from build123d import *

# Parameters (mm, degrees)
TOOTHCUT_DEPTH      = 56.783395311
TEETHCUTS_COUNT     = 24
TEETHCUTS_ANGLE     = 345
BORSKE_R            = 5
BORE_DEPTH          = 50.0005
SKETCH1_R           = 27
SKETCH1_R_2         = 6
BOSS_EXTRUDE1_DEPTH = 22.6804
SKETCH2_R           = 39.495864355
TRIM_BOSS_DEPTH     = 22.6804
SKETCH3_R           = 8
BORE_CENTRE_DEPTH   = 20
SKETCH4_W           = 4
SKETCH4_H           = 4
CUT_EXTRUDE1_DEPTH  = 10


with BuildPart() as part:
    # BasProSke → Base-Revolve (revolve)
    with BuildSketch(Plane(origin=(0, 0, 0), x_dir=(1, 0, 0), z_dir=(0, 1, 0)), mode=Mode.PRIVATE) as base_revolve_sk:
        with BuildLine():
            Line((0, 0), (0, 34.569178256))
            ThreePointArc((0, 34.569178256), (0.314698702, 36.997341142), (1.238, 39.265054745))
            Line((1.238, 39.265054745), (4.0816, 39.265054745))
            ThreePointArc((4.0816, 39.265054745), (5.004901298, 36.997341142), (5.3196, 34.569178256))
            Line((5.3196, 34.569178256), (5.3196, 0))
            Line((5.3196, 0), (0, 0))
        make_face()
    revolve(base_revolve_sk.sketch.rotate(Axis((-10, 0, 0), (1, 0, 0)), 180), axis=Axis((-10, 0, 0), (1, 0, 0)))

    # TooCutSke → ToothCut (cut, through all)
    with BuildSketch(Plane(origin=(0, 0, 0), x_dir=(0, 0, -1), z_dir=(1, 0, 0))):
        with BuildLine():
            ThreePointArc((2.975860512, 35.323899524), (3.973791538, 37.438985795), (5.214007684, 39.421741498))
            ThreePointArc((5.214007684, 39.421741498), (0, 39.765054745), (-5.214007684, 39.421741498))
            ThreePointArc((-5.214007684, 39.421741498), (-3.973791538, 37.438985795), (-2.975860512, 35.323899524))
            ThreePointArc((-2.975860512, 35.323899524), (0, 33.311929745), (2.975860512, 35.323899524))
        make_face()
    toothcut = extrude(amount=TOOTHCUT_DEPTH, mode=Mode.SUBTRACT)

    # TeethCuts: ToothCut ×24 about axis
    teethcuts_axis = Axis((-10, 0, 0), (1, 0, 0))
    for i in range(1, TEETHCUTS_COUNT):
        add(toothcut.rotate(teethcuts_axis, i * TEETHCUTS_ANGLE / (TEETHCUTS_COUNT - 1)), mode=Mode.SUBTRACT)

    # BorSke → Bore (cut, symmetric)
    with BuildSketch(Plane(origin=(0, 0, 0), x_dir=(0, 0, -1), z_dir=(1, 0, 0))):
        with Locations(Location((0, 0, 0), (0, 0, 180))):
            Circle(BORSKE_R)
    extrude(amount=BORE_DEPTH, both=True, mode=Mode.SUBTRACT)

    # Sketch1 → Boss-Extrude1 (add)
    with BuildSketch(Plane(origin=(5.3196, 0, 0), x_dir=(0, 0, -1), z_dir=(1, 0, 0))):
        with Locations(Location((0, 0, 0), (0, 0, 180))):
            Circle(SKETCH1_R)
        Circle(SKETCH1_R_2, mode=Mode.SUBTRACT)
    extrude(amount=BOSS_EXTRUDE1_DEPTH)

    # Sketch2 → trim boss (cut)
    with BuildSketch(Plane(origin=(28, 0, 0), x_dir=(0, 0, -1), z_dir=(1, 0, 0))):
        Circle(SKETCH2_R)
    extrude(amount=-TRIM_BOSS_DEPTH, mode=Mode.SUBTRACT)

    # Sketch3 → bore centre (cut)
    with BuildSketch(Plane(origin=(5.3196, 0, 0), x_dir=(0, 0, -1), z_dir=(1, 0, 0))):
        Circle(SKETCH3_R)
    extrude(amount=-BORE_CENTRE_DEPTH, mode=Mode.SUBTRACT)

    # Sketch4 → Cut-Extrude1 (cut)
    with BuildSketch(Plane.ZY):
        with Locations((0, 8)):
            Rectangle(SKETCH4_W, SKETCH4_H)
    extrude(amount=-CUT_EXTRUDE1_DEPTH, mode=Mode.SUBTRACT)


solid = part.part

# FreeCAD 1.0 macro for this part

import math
import FreeCAD as App
import Part
import Sketcher

V = App.Vector

doc = App.newDocument("Part")
body = doc.addObject("PartDesign::Body", "Body")

# Sketch on XZ plane
sketch1 = body.newObject("Sketcher::SketchObject", "Sketch")
sketch1.AttachmentSupport = (doc.getObject("XZ_Plane"), [""])
sketch1.MapMode = "FlatFace"
sketch1.addGeometry(Part.LineSegment(V(0, -34.6, 0), V(0, 0, 0)), False)
sketch1.addGeometry(Part.LineSegment(V(0, 0, 0), V(5.3, 0, 0)), False)
sketch1.addGeometry(Part.LineSegment(V(5.3, 0, 0), V(5.3, -34.6, 0)), False)
sketch1.addGeometry(Part.ArcOfCircle(Part.Circle(V(-4.2, -34.6, 0), V(0, 0, 1), 9.5), math.radians(-30), math.radians(0)), False)
sketch1.addGeometry(Part.LineSegment(V(4.1, -39.3, 0), V(1.2, -39.3, 0)), False)
sketch1.addGeometry(Part.ArcOfCircle(Part.Circle(V(9.5, -34.6, 0), V(0, 0, 1), 9.5), math.radians(180), math.radians(210)), False)
sketch1.addConstraint(Sketcher.Constraint("Coincident", 0, 2, 1, 1))
sketch1.addConstraint(Sketcher.Constraint("Coincident", 1, 2, 2, 1))
sketch1.addConstraint(Sketcher.Constraint("Tangent", 2, 2, 3, 2))
sketch1.addConstraint(Sketcher.Constraint("Coincident", 3, 1, 4, 1))
sketch1.addConstraint(Sketcher.Constraint("Coincident", 4, 2, 5, 2))
sketch1.addConstraint(Sketcher.Constraint("Tangent", 5, 1, 0, 1))
sketch1.addConstraint(Sketcher.Constraint("Vertical", 0))
sketch1.addConstraint(Sketcher.Constraint("Horizontal", 1))
sketch1.addConstraint(Sketcher.Constraint("Vertical", 2))
sketch1.addConstraint(Sketcher.Constraint("Horizontal", 4))
sketch1.addConstraint(Sketcher.Constraint("Coincident", 0, 2, -1, 1))
sketch1.addConstraint(Sketcher.Constraint("Equal", 3, 5))
sketch1.addConstraint(Sketcher.Constraint("Horizontal", 3, 3, 5, 3))
sketch1.addConstraint(Sketcher.Constraint("Radius", 3, 9.525))
sketch1.addConstraint(Sketcher.Constraint("DistanceX", 1, 1, 1, 2, 5.3196))
sketch1.addConstraint(Sketcher.Constraint("DistanceX", 4, 2, 4, 1, 2.8436))
sketch1.addConstraint(Sketcher.Constraint("DistanceY", 0, 1, 0, 2, 34.569178))
revolution = body.newObject("PartDesign::Revolution", "Revolution")
revolution.Profile = sketch1
revolution.ReferenceAxis = (sketch1, ["H_Axis"])
revolution.Angle = 360

# Sketch on YZ plane
sketch2 = body.newObject("Sketcher::SketchObject", "Sketch001")
sketch2.AttachmentSupport = (doc.getObject("YZ_Plane"), [""])
sketch2.MapMode = "FlatFace"
sketch2.addGeometry(Part.ArcOfCircle(Part.Circle(V(27.9, -21.4, 0), V(0, 0, 1), 19.8), math.radians(54.59), math.radians(68.13)), False)
sketch2.addGeometry(Part.ArcOfCircle(Part.Circle(V(0, 0, 0), V(0, 0, 1), 39.8), math.radians(-7.53), math.radians(7.53)), False)
sketch2.addGeometry(Part.ArcOfCircle(Part.Circle(V(27.9, 21.4, 0), V(0, 0, 1), 19.8), math.radians(-68.13), math.radians(-54.59)), False)
sketch2.addGeometry(Part.ArcOfCircle(Part.Circle(V(36.5, 0, 0), V(0, 0, 1), 3.2), math.radians(112), math.radians(248)), False)
sketch2.addConstraint(Sketcher.Constraint("Coincident", 0, 1, 1, 1))
sketch2.addConstraint(Sketcher.Constraint("Coincident", 1, 2, 2, 2))
sketch2.addConstraint(Sketcher.Constraint("Tangent", 2, 1, 3, 1))
sketch2.addConstraint(Sketcher.Constraint("Tangent", 3, 2, 0, 2))
sketch2.addConstraint(Sketcher.Constraint("Coincident", 1, 3, -1, 1))
sketch2.addConstraint(Sketcher.Constraint("Equal", 0, 2))
sketch2.addConstraint(Sketcher.Constraint("Symmetric", 0, 3, 2, 3, -1))
sketch2.addConstraint(Sketcher.Constraint("Radius", 0, 19.812))
sketch2.addConstraint(Sketcher.Constraint("Radius", 3, 3.20675))
sketch2.addConstraint(Sketcher.Constraint("Radius", 1, 39.765055))
sketch2.addConstraint(Sketcher.Constraint("DistanceX", -1, 1, 2, 1, 35.3239))
sketch2.addConstraint(Sketcher.Constraint("DistanceX", -1, 1, 3, 3, 36.51868))
pocket1 = body.newObject("PartDesign::Pocket", "Pocket")
pocket1.Profile = sketch2
pocket1.Type = "ThroughAll"
pocket1.Reversed = True
doc.recompute()

polarpattern = body.newObject("PartDesign::PolarPattern", "PolarPattern")
polarpattern.Originals = [pocket1]
polarpattern.Axis = (doc.getObject("X_Axis"), [""])
polarpattern.Angle = 360
polarpattern.Occurrences = 24
body.Tip = polarpattern

# Sketch on YZ plane
sketch3 = body.newObject("Sketcher::SketchObject", "Sketch002")
sketch3.AttachmentSupport = (doc.getObject("YZ_Plane"), [""])
sketch3.MapMode = "FlatFace"
sketch3.addGeometry(Part.Circle(V(0, 0, 0), V(0, 0, 1), 5), False)
sketch3.addConstraint(Sketcher.Constraint("Coincident", 0, 3, -1, 1))
sketch3.addConstraint(Sketcher.Constraint("Diameter", 0, 10.0))
pocket2 = body.newObject("PartDesign::Pocket", "Pocket001")
pocket2.Profile = sketch3
pocket2.Length = 100.001
pocket2.Midplane = True

# Sketch on YZ plane
sketch4 = body.newObject("Sketcher::SketchObject", "Sketch003")
sketch4.AttachmentSupport = (doc.getObject("YZ_Plane"), [""])
sketch4.MapMode = "FlatFace"
sketch4.AttachmentOffset = App.Placement(V(0, 0, 5.3196), App.Rotation())
sketch4.addGeometry(Part.Circle(V(0, 0, 0), V(0, 0, 1), 27), False)
sketch4.addGeometry(Part.Circle(V(0, 0, 0), V(0, 0, 1), 6), False)
sketch4.addConstraint(Sketcher.Constraint("Coincident", 0, 3, -1, 1))
sketch4.addConstraint(Sketcher.Constraint("Coincident", 1, 3, -1, 1))
sketch4.addConstraint(Sketcher.Constraint("Diameter", 0, 54.0))
sketch4.addConstraint(Sketcher.Constraint("Diameter", 1, 12.0))
pad1 = body.newObject("PartDesign::Pad", "Pad")
pad1.Profile = sketch4
pad1.Length = 22.6804

# Sketch on YZ plane
sketch5 = body.newObject("Sketcher::SketchObject", "Sketch004")
sketch5.AttachmentSupport = (doc.getObject("YZ_Plane"), [""])
sketch5.MapMode = "FlatFace"
sketch5.AttachmentOffset = App.Placement(V(0, 0, 28), App.Rotation())
sketch5.addGeometry(Part.Circle(V(0, 0, 0), V(0, 0, 1), 39), False)
sketch5.addConstraint(Sketcher.Constraint("Coincident", 0, 3, -1, 1))
sketch5.addConstraint(Sketcher.Constraint("Diameter", 0, 78.991729))
pocket3 = body.newObject("PartDesign::Pocket", "Pocket002")
pocket3.Profile = sketch5
pocket3.Length = 22.6804

# Sketch on YZ plane
sketch6 = body.newObject("Sketcher::SketchObject", "Sketch005")
sketch6.AttachmentSupport = (doc.getObject("YZ_Plane"), [""])
sketch6.MapMode = "FlatFace"
sketch6.AttachmentOffset = App.Placement(V(0, 0, 5.3196), App.Rotation())
sketch6.addGeometry(Part.Circle(V(0, 0, 0), V(0, 0, 1), 8), False)
sketch6.addConstraint(Sketcher.Constraint("Coincident", 0, 3, -1, 1))
sketch6.addConstraint(Sketcher.Constraint("Diameter", 0, 16.0))
pocket4 = body.newObject("PartDesign::Pocket", "Pocket003")
pocket4.Profile = sketch6
pocket4.Length = 20

# Sketch on YZ plane
sketch7 = body.newObject("Sketcher::SketchObject", "Sketch006")
sketch7.AttachmentSupport = (doc.getObject("YZ_Plane"), [""])
sketch7.MapMode = "FlatFace"
sketch7.addGeometry(Part.LineSegment(V(10, -2, 0), V(6, -2, 0)), False)
sketch7.addGeometry(Part.LineSegment(V(6, -2, 0), V(6, 2, 0)), False)
sketch7.addGeometry(Part.LineSegment(V(6, 2, 0), V(10, 2, 0)), False)
sketch7.addGeometry(Part.LineSegment(V(10, 2, 0), V(10, -2, 0)), False)
sketch7.addConstraint(Sketcher.Constraint("Coincident", 0, 2, 1, 1))
sketch7.addConstraint(Sketcher.Constraint("Coincident", 1, 2, 2, 1))
sketch7.addConstraint(Sketcher.Constraint("Coincident", 2, 2, 3, 1))
sketch7.addConstraint(Sketcher.Constraint("Coincident", 3, 2, 0, 1))
sketch7.addConstraint(Sketcher.Constraint("Horizontal", 0))
sketch7.addConstraint(Sketcher.Constraint("Vertical", 1))
sketch7.addConstraint(Sketcher.Constraint("Horizontal", 2))
sketch7.addConstraint(Sketcher.Constraint("Vertical", 3))
sketch7.addConstraint(Sketcher.Constraint("Equal", 2, 1))
sketch7.addConstraint(Sketcher.Constraint("DistanceX", 0, 2, 0, 1, 4.0))
sketch7.addConstraint(Sketcher.Constraint("DistanceX", -1, 1, 0, 2, 6.0))
sketch7.addConstraint(Sketcher.Constraint("DistanceY", 0, 2, -1, 1, 2.0))
pocket5 = body.newObject("PartDesign::Pocket", "Pocket004")
pocket5.Profile = sketch7
pocket5.Length = 10
pocket5.Reversed = True

doc.recompute()
